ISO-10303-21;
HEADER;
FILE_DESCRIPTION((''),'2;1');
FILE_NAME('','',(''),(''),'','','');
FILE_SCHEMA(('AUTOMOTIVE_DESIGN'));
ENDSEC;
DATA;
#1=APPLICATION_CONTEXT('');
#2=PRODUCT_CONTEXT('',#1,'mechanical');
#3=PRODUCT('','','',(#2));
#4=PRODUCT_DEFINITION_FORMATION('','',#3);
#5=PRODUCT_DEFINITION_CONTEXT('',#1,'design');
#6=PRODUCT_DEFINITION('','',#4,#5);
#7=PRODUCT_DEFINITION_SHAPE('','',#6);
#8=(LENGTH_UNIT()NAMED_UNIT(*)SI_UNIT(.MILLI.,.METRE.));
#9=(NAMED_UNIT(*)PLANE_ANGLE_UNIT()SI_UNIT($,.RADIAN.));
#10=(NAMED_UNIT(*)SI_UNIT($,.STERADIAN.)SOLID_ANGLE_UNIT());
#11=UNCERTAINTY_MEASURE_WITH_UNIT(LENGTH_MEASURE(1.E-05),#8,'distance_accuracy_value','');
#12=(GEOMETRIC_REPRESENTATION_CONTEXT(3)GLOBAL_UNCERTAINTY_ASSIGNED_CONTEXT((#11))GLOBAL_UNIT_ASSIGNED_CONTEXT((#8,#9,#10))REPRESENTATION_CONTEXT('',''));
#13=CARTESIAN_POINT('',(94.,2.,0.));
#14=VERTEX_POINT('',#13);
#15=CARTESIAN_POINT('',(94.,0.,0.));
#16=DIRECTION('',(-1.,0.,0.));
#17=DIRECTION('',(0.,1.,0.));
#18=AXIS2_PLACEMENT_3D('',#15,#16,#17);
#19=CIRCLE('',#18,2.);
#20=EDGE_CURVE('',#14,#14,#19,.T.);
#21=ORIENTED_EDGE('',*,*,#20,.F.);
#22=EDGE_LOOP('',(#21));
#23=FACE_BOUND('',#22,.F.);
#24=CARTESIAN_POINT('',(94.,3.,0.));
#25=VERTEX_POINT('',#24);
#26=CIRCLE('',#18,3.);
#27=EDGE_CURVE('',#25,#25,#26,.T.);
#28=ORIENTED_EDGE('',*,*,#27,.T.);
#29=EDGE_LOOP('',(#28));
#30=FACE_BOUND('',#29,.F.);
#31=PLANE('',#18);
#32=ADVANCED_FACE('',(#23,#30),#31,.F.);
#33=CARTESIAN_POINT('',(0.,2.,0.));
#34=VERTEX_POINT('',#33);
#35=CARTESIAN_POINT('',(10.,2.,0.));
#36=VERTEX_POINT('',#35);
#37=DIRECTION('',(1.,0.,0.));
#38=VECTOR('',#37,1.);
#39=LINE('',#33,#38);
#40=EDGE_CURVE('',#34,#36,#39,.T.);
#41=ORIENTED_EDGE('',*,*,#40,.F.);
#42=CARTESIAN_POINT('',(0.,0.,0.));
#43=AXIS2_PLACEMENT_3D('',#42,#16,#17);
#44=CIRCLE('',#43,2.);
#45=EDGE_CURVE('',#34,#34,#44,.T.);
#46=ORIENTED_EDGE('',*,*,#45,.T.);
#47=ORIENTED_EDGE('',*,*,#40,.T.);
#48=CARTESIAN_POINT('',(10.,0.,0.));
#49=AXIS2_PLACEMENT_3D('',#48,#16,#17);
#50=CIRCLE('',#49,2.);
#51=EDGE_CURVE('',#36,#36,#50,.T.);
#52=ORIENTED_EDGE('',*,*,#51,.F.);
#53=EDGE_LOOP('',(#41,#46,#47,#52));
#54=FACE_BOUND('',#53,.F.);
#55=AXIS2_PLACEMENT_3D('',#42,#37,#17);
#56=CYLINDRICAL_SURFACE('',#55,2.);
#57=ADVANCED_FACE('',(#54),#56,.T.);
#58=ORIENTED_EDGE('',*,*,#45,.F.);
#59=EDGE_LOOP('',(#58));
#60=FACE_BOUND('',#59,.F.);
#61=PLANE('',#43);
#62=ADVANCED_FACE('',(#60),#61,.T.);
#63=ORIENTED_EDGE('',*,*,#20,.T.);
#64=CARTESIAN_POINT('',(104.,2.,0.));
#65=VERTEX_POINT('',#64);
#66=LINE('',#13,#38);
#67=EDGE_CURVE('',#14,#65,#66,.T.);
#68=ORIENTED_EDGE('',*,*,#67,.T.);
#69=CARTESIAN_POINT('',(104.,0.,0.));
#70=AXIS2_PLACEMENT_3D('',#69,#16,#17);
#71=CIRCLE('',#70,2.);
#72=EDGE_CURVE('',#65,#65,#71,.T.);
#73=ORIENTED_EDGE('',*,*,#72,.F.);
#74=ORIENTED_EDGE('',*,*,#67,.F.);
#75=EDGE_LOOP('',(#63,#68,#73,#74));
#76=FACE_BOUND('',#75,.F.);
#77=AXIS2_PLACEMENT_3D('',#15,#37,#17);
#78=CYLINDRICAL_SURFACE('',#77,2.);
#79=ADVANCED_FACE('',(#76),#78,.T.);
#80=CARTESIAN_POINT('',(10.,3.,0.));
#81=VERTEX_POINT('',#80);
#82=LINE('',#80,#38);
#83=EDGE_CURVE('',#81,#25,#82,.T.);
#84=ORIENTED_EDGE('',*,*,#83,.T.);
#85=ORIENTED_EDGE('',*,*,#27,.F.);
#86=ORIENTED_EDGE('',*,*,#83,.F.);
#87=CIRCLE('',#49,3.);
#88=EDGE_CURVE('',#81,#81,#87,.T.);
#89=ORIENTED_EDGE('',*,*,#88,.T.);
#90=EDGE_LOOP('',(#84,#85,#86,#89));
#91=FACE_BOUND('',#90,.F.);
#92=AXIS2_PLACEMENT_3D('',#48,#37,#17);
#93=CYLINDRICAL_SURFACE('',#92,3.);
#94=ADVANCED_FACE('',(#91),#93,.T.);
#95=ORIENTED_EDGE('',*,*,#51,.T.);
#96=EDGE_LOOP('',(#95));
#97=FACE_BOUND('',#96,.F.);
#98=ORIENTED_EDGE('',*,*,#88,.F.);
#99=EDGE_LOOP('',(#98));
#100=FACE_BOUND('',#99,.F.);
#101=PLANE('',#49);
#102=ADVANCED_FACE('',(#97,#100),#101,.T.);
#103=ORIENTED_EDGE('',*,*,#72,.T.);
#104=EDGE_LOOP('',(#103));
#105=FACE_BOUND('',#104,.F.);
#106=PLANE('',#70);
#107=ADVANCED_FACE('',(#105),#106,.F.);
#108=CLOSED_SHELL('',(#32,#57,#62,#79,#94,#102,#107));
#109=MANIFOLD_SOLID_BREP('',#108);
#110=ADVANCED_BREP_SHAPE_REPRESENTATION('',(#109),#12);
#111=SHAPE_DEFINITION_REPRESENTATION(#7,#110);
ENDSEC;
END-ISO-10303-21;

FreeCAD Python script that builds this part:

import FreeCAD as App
import Part
import Sketcher
Q = App.Units.Quantity


def add_polygon(sketch, points):
    """Adds a closed chain of lines whose ends are joined by coincident constraints."""
    first, n = sketch.GeometryCount, len(points)
    for a, b in zip(points, points[1:] + points[:1]):
        sketch.addGeometry(Part.LineSegment(App.Vector(*a, 0), App.Vector(*b, 0)), False)
    for i in range(n):
        sketch.addConstraint(Sketcher.Constraint("Coincident", first + i, 2, first + (i + 1) % n, 1))

doc = App.newDocument("Part")
body = doc.addObject("PartDesign::Body", "Body")

# Sketch on XY plane
sketch1 = body.newObject("Sketcher::SketchObject", "Sketch")
sketch1.AttachmentSupport = (doc.getObject("XY_Plane"), [""])
sketch1.MapMode = "FlatFace"
add_polygon(sketch1, [(0, 2), (0, 0), (104, 0), (104, 2), (94, 2), (94, 3), (10, 3), (10, 2)])  # lines 0-7
sketch1.addConstraint(Sketcher.Constraint("Vertical", 0))
sketch1.addConstraint(Sketcher.Constraint("Horizontal", 1))
sketch1.addConstraint(Sketcher.Constraint("Vertical", 2))
sketch1.addConstraint(Sketcher.Constraint("Horizontal", 3))
sketch1.addConstraint(Sketcher.Constraint("Vertical", 4))
sketch1.addConstraint(Sketcher.Constraint("Horizontal", 5))
sketch1.addConstraint(Sketcher.Constraint("Vertical", 6))
sketch1.addConstraint(Sketcher.Constraint("Horizontal", 7))
sketch1.addConstraint(Sketcher.Constraint("Coincident", 0, 2, -1, 1))
sketch1.addConstraint(Sketcher.Constraint("Horizontal", 3, 2, 6, 2))
sketch1.addConstraint(Sketcher.Constraint("Equal", 3, 7))
sketch1.addConstraint(Sketcher.Constraint("DistanceX", 1, 1, 1, 2, Q("104 mm")))
sketch1.addConstraint(Sketcher.Constraint("DistanceX", 3, 2, 3, 1, Q("10 mm")))
sketch1.addConstraint(Sketcher.Constraint("DistanceY", 0, 2, 0, 1, Q("2 mm")))
sketch1.addConstraint(Sketcher.Constraint("DistanceY", 4, 1, 4, 2, Q("1 mm")))
revolution = body.newObject("PartDesign::Revolution", "Revolution")
revolution.Profile = sketch1
revolution.ReferenceAxis = (sketch1, ["H_Axis"])
revolution.Angle = 360

doc.recompute()
